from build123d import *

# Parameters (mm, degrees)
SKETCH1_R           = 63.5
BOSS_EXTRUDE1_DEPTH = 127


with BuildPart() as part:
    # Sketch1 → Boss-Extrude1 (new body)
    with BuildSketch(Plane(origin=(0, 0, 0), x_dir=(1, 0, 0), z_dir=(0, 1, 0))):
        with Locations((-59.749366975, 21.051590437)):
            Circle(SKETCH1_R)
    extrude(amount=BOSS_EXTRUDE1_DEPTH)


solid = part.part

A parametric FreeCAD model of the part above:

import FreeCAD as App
import Part
import Sketcher

V = App.Vector
Q = App.Units.Quantity

doc = App.newDocument("Part")
body = doc.addObject("PartDesign::Body", "Body")

# Sketch on XZ plane
sketch1 = body.newObject("Sketcher::SketchObject", "Sketch")
sketch1.AttachmentSupport = (doc.getObject("XZ_Plane"), [""])
sketch1.MapMode = "FlatFace"
sketch1.addGeometry(Part.Circle(V(-59.749367, -21.05159, 0), V(0, 0, 1), 63.5), False)
sketch1.addConstraint([
    Sketcher.Constraint("Diameter", 0, Q("5 in")),
    Sketcher.Constraint("DistanceY", 0, 3, -1, 1, 21.05159),
    Sketcher.Constraint("DistanceX", 0, 3, -1, 1, 59.749367),
])
pad1 = body.newObject("PartDesign::Pad", "Pad")
pad1.Profile = sketch1
pad1.Length = Q("5 in")
pad1.Reversed = True

doc.recompute()
